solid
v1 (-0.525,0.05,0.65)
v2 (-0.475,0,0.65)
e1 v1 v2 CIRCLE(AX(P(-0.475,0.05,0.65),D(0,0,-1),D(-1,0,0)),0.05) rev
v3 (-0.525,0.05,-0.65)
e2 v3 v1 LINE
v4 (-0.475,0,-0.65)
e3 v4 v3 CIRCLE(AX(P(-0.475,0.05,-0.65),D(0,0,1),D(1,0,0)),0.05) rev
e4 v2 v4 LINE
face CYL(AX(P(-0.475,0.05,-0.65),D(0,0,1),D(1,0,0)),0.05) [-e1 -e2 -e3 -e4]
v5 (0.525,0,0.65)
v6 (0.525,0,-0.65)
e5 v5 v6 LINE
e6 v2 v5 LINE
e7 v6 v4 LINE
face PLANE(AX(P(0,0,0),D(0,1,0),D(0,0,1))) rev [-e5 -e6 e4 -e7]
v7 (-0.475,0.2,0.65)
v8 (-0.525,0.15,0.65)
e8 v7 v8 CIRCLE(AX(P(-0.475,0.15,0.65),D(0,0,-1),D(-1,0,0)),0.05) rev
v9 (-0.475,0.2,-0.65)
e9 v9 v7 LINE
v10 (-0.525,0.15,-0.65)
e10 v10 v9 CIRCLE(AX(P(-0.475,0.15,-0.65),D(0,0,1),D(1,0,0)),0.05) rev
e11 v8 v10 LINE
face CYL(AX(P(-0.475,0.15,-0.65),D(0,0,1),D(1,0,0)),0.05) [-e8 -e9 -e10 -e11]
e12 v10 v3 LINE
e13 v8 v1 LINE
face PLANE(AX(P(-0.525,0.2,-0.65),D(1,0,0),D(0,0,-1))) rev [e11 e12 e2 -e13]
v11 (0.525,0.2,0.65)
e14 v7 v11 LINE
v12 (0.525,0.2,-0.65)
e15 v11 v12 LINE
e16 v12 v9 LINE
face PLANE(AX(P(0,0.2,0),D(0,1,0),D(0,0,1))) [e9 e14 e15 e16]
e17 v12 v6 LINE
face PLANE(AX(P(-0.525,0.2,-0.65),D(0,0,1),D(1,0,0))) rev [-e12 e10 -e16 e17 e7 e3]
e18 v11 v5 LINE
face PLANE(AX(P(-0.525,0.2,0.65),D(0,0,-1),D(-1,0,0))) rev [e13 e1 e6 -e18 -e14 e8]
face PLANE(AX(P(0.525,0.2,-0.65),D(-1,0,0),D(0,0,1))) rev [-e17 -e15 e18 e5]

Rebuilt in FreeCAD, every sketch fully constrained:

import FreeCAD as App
import Part
import Sketcher
from FreeCAD import Vector
Q = App.Units.Quantity


def edges_at(feature, points):
    """Names of the edges that pass closest to the given points."""
    edges = feature.Shape.Edges
    near = lambda p: min(range(len(edges)), key=lambda i: edges[i].distToShape(Part.Vertex(*p))[0])
    return sorted({f"Edge{near(p) + 1}" for p in points})


def add_polygon(sketch, points):
    """Adds a closed chain of lines whose ends are joined by coincident constraints."""
    first, n = sketch.GeometryCount, len(points)
    for a, b in zip(points, points[1:] + points[:1]):
        sketch.addGeometry(Part.LineSegment(App.Vector(*a, 0), App.Vector(*b, 0)), False)
    for i in range(n):
        sketch.addConstraint(Sketcher.Constraint("Coincident", first + i, 2, first + (i + 1) % n, 1))

doc = App.newDocument("Part")
body = doc.addObject("PartDesign::Body", "Body")

# Sketch on XZ plane
sketch1 = body.newObject("Sketcher::SketchObject", "Sketch")
sketch1.AttachmentSupport = (doc.getObject("XZ_Plane"), [""])
sketch1.MapMode = "FlatFace"
add_polygon(sketch1, [(-0.5, -0.7), (-0.5, 0.7), (0.5, 0.7), (0.5, -0.7)])  # lines 0-3
sketch1.addConstraint([
    Sketcher.Constraint("Vertical", 0),
    Sketcher.Constraint("Horizontal", 1),
    Sketcher.Constraint("Vertical", 2),
    Sketcher.Constraint("Horizontal", 3),
    Sketcher.Constraint("Symmetric", 0, 2, 2, 2, -1, 1),
    Sketcher.Constraint("DistanceY", 0, 1, 0, 2, Q("1.3 mm")),
    Sketcher.Constraint("DistanceX", 1, 1, 1, 2, Q("1.05 mm")),
])
pad1 = body.newObject("PartDesign::Pad", "Pad")
pad1.Profile = sketch1
pad1.Length = 0.2
pad1.Reversed = True
doc.recompute()

fillet = body.newObject("PartDesign::Fillet", "Fillet")
fillet.Base = (pad1, edges_at(pad1, [(-0.525, 0.2, 0)]))
fillet.Radius = 0.05
doc.recompute()

fillet2 = body.newObject("PartDesign::Fillet", "Fillet001")
fillet2.Base = (fillet, edges_at(fillet, [(-0.525, 0, 0)]))
fillet2.Radius = 0.05

doc.recompute()
